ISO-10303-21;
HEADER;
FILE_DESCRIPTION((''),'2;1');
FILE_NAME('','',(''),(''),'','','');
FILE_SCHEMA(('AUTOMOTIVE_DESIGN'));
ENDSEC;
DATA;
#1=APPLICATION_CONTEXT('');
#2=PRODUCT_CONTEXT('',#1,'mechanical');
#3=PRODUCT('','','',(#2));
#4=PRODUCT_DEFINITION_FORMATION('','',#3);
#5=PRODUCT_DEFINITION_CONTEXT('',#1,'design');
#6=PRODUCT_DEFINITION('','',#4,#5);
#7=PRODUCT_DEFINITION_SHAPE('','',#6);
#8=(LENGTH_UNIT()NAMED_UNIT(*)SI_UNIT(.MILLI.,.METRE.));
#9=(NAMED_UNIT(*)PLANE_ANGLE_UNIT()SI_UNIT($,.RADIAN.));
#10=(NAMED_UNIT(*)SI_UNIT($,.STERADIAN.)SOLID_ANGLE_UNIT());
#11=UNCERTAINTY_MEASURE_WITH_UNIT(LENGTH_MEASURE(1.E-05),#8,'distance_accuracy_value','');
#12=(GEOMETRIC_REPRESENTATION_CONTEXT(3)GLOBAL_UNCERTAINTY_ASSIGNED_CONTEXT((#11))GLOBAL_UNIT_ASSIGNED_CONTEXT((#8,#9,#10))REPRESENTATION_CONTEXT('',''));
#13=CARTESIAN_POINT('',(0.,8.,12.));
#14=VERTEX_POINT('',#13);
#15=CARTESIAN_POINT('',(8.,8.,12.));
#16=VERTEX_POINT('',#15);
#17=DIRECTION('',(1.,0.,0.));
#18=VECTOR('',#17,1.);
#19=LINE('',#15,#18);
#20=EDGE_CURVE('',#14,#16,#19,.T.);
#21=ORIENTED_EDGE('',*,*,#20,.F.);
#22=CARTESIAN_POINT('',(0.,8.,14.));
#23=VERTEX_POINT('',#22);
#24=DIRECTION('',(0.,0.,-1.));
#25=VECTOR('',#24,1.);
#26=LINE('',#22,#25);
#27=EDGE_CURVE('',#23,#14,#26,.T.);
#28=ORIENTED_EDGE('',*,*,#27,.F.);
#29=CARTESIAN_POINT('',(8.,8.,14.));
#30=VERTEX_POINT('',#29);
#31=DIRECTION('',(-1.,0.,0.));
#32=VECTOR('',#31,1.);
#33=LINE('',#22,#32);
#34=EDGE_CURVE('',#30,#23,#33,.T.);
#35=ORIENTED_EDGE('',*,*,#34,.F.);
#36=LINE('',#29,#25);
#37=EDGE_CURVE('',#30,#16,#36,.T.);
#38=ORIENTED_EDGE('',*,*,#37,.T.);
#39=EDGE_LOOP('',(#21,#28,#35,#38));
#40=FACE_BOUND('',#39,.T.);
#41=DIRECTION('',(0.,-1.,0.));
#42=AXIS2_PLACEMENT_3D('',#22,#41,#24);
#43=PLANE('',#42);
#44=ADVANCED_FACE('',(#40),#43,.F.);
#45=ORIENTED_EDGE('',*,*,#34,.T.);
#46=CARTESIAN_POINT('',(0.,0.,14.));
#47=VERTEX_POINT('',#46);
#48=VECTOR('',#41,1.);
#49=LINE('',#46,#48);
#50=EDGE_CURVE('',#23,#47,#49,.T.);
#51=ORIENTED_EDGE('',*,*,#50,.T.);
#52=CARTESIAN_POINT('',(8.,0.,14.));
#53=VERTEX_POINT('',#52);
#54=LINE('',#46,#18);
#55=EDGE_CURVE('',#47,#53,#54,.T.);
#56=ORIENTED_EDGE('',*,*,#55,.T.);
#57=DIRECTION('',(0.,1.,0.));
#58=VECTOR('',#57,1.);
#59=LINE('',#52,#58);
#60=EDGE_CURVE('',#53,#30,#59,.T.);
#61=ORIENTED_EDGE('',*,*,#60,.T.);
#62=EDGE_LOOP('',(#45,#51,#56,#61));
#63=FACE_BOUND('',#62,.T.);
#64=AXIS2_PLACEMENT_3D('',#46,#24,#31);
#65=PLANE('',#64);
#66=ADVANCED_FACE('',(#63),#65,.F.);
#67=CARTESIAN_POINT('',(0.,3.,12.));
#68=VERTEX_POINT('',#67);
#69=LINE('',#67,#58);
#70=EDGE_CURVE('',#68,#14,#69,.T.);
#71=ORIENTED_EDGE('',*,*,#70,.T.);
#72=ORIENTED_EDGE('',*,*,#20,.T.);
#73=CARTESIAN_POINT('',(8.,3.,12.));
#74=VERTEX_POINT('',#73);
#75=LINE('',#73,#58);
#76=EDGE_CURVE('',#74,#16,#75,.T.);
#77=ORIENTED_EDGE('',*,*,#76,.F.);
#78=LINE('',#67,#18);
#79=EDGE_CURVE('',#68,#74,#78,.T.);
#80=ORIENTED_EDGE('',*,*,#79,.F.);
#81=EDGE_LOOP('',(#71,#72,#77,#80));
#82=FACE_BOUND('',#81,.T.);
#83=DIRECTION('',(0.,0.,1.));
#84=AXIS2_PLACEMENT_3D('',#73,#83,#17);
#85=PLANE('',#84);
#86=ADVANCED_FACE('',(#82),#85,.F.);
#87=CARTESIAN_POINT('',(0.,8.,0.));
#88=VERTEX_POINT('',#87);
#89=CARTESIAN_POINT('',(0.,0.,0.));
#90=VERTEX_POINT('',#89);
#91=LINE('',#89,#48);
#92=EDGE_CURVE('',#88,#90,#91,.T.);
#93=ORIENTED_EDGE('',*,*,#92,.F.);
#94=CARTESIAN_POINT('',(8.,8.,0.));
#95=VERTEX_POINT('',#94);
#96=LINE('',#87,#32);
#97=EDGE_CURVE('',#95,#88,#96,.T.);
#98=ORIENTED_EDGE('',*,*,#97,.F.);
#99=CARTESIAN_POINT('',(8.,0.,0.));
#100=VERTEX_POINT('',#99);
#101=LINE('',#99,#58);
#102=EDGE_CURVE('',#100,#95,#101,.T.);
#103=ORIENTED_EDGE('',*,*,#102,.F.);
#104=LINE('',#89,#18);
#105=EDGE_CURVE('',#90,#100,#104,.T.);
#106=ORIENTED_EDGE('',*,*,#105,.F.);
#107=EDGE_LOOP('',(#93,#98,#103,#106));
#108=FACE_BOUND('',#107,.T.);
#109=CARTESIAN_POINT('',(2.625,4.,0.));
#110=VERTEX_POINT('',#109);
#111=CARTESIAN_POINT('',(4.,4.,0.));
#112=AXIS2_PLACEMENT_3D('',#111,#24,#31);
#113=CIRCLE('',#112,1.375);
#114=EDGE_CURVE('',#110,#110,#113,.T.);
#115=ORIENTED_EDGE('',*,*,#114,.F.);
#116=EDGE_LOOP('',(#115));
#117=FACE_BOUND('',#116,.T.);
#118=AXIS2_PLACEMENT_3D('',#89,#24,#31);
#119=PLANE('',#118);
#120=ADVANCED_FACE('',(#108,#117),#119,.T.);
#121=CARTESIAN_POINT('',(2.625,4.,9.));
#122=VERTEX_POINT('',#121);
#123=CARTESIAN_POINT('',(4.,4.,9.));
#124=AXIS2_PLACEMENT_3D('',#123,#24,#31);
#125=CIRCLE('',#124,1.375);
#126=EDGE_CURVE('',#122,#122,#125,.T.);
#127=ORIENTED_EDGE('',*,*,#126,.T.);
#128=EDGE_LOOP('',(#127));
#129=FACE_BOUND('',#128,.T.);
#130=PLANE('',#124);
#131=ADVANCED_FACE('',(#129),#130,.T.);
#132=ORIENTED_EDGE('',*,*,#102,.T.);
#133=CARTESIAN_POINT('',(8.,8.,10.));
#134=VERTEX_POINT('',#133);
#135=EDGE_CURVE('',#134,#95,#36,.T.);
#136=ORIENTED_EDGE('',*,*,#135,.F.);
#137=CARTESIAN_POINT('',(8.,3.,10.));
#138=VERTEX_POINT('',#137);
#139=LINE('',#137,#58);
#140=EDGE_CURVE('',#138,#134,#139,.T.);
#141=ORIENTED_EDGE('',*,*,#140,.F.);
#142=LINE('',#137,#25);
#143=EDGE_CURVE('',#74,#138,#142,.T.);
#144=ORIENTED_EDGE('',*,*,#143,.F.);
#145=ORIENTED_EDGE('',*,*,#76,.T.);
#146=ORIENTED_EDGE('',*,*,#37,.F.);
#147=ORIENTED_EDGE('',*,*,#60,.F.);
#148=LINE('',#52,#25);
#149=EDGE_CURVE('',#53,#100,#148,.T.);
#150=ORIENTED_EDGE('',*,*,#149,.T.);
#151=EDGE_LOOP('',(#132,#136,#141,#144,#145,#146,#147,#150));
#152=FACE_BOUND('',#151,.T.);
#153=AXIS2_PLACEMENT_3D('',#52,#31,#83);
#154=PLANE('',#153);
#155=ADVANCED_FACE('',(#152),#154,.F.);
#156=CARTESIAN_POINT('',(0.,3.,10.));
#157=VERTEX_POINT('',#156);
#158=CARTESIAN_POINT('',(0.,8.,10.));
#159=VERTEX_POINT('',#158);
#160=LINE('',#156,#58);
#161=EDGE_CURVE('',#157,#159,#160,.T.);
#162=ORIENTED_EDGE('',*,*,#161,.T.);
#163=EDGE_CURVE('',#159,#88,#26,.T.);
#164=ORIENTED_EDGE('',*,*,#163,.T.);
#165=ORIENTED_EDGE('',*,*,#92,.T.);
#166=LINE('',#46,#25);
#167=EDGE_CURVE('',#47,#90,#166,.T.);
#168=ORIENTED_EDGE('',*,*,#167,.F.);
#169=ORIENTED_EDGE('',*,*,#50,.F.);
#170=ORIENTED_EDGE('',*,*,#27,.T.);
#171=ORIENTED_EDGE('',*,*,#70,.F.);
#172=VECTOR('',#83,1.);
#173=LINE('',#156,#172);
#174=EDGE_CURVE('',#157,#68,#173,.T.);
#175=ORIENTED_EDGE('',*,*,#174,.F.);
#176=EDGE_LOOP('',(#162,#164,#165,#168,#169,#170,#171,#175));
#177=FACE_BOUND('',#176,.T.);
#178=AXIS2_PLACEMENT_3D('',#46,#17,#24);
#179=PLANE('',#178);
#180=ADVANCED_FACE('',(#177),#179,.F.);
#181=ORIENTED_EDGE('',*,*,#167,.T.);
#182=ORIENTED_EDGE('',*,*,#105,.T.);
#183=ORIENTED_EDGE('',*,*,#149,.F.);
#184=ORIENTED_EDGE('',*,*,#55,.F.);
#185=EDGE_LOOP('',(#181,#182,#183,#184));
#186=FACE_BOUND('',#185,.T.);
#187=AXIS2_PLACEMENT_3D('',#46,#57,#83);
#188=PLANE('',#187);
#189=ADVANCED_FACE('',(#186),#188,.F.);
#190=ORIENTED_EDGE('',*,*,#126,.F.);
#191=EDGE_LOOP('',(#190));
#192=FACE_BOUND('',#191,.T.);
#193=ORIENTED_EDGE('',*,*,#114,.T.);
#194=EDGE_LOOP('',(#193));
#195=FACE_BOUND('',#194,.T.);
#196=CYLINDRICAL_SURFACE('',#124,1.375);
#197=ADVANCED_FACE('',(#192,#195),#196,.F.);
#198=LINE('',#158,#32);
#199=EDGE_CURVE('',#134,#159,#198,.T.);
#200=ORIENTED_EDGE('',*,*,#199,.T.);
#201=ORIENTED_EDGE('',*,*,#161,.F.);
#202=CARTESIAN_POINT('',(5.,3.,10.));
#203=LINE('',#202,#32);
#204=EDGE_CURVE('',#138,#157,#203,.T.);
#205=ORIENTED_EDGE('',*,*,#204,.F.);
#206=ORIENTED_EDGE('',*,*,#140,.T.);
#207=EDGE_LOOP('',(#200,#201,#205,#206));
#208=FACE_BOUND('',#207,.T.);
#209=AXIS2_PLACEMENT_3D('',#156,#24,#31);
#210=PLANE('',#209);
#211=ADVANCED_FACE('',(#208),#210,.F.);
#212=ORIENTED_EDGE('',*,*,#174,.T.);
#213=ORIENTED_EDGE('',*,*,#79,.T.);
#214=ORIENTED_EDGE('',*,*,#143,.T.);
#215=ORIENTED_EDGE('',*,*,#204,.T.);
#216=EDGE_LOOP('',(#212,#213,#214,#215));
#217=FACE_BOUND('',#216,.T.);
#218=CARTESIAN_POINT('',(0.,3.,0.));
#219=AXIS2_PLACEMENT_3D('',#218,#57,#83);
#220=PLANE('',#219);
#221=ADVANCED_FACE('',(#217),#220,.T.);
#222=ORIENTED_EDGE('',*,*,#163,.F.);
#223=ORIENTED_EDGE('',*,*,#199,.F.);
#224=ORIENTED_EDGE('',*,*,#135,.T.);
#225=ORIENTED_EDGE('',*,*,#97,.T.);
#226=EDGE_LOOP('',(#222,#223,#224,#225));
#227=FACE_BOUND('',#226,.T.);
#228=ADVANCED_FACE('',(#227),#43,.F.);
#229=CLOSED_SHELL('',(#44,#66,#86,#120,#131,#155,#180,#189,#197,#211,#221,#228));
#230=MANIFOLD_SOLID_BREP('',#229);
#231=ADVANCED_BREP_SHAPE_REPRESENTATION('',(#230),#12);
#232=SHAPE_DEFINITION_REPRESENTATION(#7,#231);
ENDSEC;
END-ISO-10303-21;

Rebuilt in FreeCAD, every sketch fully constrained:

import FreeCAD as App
import Part
import Sketcher
Q = App.Units.Quantity


def add_polygon(sketch, points):
    """Adds a closed chain of lines whose ends are joined by coincident constraints."""
    first, n = sketch.GeometryCount, len(points)
    for a, b in zip(points, points[1:] + points[:1]):
        sketch.addGeometry(Part.LineSegment(App.Vector(*a, 0), App.Vector(*b, 0)), False)
    for i in range(n):
        sketch.addConstraint(Sketcher.Constraint("Coincident", first + i, 2, first + (i + 1) % n, 1))

doc = App.newDocument("Part")
body = doc.addObject("PartDesign::Body", "Body")

sketch1 = body.newObject("Sketcher::SketchObject", "Sketch")
sketch1.AttachmentSupport = (doc.getObject("XY_Plane"), [""])
sketch1.MapMode = "FlatFace"
add_polygon(sketch1, [(0, 8), (0, 0), (8, 0), (8, 8)])
sketch1.addConstraint(Sketcher.Constraint("Vertical", 0))
sketch1.addConstraint(Sketcher.Constraint("Horizontal", 1))
sketch1.addConstraint(Sketcher.Constraint("Vertical", 2))
sketch1.addConstraint(Sketcher.Constraint("Horizontal", 3))
sketch1.addConstraint(Sketcher.Constraint("Coincident", 0, 2, -1, 1))
sketch1.addConstraint(Sketcher.Constraint("Equal", 3, 0))
sketch1.addConstraint(Sketcher.Constraint("DistanceX", 1, 1, 1, 2, Q("8 mm")))
pad1 = body.newObject("PartDesign::Pad", "Pad")
pad1.Profile = sketch1
pad1.Length = 14

sketch2 = body.newObject("Sketcher::SketchObject", "Sketch001")
sketch2.AttachmentSupport = (doc.getObject("XZ_Plane"), [""])
sketch2.MapMode = "FlatFace"
sketch2.AttachmentOffset = App.Placement(App.Vector(0, 0, -8), App.Rotation())
add_polygon(sketch2, [(8, 10), (0, 10), (0, 12), (8, 12)])
sketch2.addConstraint(Sketcher.Constraint("Horizontal", 0))
sketch2.addConstraint(Sketcher.Constraint("Vertical", 1))
sketch2.addConstraint(Sketcher.Constraint("Horizontal", 2))
sketch2.addConstraint(Sketcher.Constraint("Vertical", 3))
sketch2.addConstraint(Sketcher.Constraint("PointOnObject", 0, 2, -2))
sketch2.addConstraint(Sketcher.Constraint("DistanceX", 0, 2, 0, 1, Q("8 mm")))
sketch2.addConstraint(Sketcher.Constraint("DistanceY", 1, 1, 1, 2, Q("2 mm")))
sketch2.addConstraint(Sketcher.Constraint("DistanceY", -1, 1, 0, 2, Q("10 mm")))
pocket1 = body.newObject("PartDesign::Pocket", "Pocket")
pocket1.Profile = sketch2
pocket1.Length = 5
pocket1.Reversed = True

sketch3 = body.newObject("Sketcher::SketchObject", "Sketch002")
sketch3.AttachmentSupport = (doc.getObject("XY_Plane"), [""])
sketch3.MapMode = "FlatFace"
sketch3.addGeometry(Part.Circle(App.Vector(4, 4, 0), App.Vector(0, 0, 1), 1.4), False)
sketch3.addConstraint(Sketcher.Constraint("Diameter", 0, Q("2.75 mm")))
sketch3.addConstraint(Sketcher.Constraint("DistanceX", -1, 1, 0, 3, Q("4 mm")))
sketch3.addConstraint(Sketcher.Constraint("DistanceY", -1, 1, 0, 3, Q("4 mm")))
pocket2 = body.newObject("PartDesign::Pocket", "Pocket001")
pocket2.Profile = sketch3
pocket2.Length = 9
pocket2.Reversed = True

doc.recompute()
